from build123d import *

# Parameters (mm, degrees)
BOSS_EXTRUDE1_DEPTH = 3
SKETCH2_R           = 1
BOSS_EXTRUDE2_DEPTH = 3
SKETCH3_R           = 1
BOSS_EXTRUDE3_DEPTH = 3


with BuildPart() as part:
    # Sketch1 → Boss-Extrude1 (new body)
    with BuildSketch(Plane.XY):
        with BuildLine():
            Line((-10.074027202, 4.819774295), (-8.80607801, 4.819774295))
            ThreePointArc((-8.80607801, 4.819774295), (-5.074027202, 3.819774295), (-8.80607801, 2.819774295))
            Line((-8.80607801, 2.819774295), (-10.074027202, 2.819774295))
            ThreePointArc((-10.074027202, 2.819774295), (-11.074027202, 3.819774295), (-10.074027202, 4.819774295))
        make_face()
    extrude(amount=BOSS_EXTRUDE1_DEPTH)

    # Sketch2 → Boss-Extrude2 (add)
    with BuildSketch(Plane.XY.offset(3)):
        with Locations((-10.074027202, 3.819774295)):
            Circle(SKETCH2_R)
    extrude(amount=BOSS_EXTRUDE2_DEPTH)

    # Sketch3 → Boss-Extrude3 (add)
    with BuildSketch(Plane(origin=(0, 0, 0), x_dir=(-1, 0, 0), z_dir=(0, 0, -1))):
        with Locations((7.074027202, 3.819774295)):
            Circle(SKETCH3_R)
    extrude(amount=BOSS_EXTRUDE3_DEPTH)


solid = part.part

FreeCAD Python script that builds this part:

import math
import FreeCAD as App
import Part
import Sketcher
from FreeCAD import Vector

doc = App.newDocument("Part")
body = doc.addObject("PartDesign::Body", "Body")

# Sketch on XY plane
sketch1 = doc.addObject("Sketcher::SketchObject", "Sketch")
body.addObject(sketch1)
sketch1.AttachmentSupport = (doc.XY_Plane, [""])
sketch1.MapMode = "FlatFace"
sketch1.addGeometry(Part.LineSegment(Vector(-8.8, 4.8, 0), Vector(-10.1, 4.8, 0)), False)
sketch1.addGeometry(Part.ArcOfCircle(Part.Circle(Vector(-10.1, 3.8, 0), Vector(0, 0, 1), 1), math.radians(90), math.radians(270)), False)
sketch1.addGeometry(Part.LineSegment(Vector(-10.1, 2.8, 0), Vector(-8.8, 2.8, 0)), False)
sketch1.addGeometry(Part.ArcOfCircle(Part.Circle(Vector(-7.1, 3.8, 0), Vector(0, 0, 1), 2), math.radians(-150), math.radians(150)), False)
sketch1.addConstraint(Sketcher.Constraint("Tangent", 0, 2, 1, 1))
sketch1.addConstraint(Sketcher.Constraint("Tangent", 1, 2, 2, 1))
sketch1.addConstraint(Sketcher.Constraint("Coincident", 2, 2, 3, 1))
sketch1.addConstraint(Sketcher.Constraint("Coincident", 3, 2, 0, 1))
sketch1.addConstraint(Sketcher.Constraint("Horizontal", 0))
sketch1.addConstraint(Sketcher.Constraint("Horizontal", 2))
sketch1.addConstraint(Sketcher.Constraint("Horizontal", 1, 3, 3, 3))
sketch1.addConstraint(Sketcher.Constraint("Radius", 1, 1.0))
sketch1.addConstraint(Sketcher.Constraint("Radius", 3, 2.0))
sketch1.addConstraint(Sketcher.Constraint("DistanceX", 1, 3, 3, 3, 3.0))
sketch1.addConstraint(Sketcher.Constraint("DistanceX", 2, 2, -1, 1, 8.806078))
sketch1.addConstraint(Sketcher.Constraint("DistanceY", -1, 1, 1, 3, 3.819774))
pad1 = doc.addObject("PartDesign::Pad", "Pad")
body.addObject(pad1)
pad1.Profile = sketch1
pad1.Length = 3

# Sketch on XY plane
sketch2 = doc.addObject("Sketcher::SketchObject", "Sketch001")
body.addObject(sketch2)
sketch2.AttachmentSupport = (doc.XY_Plane, [""])
sketch2.MapMode = "FlatFace"
sketch2.AttachmentOffset = App.Placement(Vector(0, 0, 3), App.Rotation())
sketch2.addGeometry(Part.Circle(Vector(-10.1, 3.8, 0), Vector(0, 0, 1), 1), False)
sketch2.addConstraint(Sketcher.Constraint("Diameter", 0, 2.0))
sketch2.addConstraint(Sketcher.Constraint("DistanceX", 0, 3, -1, 1, 10.074027))
sketch2.addConstraint(Sketcher.Constraint("DistanceY", -1, 1, 0, 3, 3.819774))
pad2 = doc.addObject("PartDesign::Pad", "Pad001")
body.addObject(pad2)
pad2.Profile = sketch2
pad2.Length = 3

# Sketch on XY plane
sketch3 = doc.addObject("Sketcher::SketchObject", "Sketch002")
body.addObject(sketch3)
sketch3.AttachmentSupport = (doc.XY_Plane, [""])
sketch3.MapMode = "FlatFace"
sketch3.addGeometry(Part.Circle(Vector(-7.1, 3.8, 0), Vector(0, 0, 1), 1), False)
sketch3.addConstraint(Sketcher.Constraint("Diameter", 0, 2.0))
sketch3.addConstraint(Sketcher.Constraint("DistanceX", 0, 3, -1, 1, 7.074027))
sketch3.addConstraint(Sketcher.Constraint("DistanceY", -1, 1, 0, 3, 3.819774))
pad3 = doc.addObject("PartDesign::Pad", "Pad002")
body.addObject(pad3)
pad3.Profile = sketch3
pad3.Length = 3
pad3.Reversed = True

doc.recompute()
